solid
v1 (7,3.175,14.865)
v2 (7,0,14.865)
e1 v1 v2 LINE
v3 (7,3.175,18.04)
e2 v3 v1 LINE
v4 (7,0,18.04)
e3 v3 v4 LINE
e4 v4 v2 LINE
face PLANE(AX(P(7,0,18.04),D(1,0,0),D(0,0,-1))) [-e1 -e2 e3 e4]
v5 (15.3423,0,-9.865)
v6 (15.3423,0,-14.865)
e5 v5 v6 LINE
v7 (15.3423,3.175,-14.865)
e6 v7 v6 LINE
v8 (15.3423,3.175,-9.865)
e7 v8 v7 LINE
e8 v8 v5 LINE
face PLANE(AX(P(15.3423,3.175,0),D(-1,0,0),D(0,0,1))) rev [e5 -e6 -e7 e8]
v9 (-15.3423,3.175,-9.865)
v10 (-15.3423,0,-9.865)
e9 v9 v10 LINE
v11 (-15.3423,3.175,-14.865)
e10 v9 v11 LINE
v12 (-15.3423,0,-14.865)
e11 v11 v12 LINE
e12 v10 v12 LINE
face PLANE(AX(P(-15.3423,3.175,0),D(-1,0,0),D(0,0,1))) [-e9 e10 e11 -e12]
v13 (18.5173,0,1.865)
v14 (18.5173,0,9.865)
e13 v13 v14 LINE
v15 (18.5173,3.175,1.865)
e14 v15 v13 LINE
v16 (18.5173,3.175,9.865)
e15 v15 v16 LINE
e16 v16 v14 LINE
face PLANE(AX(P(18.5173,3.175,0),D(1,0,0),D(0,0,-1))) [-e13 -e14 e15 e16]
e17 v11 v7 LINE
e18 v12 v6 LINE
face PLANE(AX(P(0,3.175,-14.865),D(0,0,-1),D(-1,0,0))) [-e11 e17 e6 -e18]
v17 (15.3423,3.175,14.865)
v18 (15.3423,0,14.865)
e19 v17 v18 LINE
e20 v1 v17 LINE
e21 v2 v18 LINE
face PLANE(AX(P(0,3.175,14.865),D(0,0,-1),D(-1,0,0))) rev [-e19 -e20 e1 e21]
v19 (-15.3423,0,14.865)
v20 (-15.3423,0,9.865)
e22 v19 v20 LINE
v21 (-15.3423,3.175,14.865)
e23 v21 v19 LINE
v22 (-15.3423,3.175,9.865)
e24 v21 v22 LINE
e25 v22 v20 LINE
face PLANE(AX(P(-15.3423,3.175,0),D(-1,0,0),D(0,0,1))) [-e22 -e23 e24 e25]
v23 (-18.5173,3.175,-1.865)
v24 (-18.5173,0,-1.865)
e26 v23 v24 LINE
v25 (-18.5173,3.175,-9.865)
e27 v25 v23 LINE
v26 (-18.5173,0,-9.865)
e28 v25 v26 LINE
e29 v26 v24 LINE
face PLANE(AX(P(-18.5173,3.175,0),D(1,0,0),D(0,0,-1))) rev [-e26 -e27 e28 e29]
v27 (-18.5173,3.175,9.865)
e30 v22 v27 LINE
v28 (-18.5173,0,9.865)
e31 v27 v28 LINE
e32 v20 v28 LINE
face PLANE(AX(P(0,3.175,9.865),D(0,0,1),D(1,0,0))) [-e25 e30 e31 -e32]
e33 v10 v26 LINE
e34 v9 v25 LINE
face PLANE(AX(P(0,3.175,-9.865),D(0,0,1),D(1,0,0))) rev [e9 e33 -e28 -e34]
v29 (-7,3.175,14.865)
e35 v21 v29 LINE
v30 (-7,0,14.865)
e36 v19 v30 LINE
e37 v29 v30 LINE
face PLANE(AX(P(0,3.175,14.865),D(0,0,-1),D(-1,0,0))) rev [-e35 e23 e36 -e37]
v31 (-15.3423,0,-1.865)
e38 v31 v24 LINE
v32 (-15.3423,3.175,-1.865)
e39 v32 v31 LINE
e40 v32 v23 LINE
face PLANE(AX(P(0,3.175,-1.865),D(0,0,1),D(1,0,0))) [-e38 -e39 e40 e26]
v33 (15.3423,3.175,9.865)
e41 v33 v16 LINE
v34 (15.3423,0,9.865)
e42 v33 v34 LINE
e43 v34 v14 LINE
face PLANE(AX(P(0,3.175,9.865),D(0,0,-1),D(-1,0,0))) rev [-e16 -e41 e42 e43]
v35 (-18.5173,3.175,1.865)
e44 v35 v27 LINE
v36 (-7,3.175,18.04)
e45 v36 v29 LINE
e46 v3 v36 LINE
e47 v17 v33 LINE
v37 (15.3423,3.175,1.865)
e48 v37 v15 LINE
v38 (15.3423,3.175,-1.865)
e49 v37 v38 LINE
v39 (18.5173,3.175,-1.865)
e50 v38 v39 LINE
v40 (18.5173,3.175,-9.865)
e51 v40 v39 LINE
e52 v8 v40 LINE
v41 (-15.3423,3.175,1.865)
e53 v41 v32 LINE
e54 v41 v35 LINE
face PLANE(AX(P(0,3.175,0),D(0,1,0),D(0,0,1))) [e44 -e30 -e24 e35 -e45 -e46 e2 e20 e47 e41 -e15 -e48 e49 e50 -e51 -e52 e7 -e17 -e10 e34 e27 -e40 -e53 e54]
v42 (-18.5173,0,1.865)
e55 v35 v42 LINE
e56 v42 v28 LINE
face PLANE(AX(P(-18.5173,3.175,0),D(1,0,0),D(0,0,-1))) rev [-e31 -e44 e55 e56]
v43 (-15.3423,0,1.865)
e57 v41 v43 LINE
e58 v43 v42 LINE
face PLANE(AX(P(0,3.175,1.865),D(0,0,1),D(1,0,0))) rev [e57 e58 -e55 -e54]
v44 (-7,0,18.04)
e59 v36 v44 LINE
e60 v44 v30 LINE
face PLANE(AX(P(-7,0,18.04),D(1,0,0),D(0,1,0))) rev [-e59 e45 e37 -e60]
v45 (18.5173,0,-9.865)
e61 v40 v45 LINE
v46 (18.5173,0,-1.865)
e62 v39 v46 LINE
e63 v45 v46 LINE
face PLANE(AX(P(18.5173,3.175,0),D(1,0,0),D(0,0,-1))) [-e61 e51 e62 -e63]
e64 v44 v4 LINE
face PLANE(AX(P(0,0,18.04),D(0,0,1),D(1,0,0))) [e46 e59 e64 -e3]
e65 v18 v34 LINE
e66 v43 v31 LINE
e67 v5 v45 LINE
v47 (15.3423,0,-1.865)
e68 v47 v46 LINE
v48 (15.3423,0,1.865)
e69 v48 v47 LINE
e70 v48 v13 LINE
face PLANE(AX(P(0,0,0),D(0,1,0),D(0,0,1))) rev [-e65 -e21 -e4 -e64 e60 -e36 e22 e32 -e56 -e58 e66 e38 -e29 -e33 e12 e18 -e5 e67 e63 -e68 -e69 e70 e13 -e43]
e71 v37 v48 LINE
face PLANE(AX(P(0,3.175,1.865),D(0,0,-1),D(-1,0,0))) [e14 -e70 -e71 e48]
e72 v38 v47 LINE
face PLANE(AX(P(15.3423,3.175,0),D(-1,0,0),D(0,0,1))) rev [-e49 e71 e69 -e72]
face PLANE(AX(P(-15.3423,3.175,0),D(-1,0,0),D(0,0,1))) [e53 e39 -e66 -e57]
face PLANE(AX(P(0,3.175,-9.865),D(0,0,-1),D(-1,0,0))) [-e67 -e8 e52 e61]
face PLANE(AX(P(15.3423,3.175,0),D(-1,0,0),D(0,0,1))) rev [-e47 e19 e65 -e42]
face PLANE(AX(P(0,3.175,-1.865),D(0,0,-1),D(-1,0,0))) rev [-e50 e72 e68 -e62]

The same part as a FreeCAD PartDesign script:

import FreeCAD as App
import Part
import Sketcher

V = App.Vector


def add_polygon(sketch, points):
    """Adds a closed chain of lines whose ends are joined by coincident constraints."""
    first, n = sketch.GeometryCount, len(points)
    for a, b in zip(points, points[1:] + points[:1]):
        sketch.addGeometry(Part.LineSegment(App.Vector(*a, 0), App.Vector(*b, 0)), False)
    for i in range(n):
        sketch.addConstraint(Sketcher.Constraint("Coincident", first + i, 2, first + (i + 1) % n, 1))

doc = App.newDocument("Part")
params = doc.addObject("Spreadsheet::Sheet", "Params")
for row, (alias, value) in enumerate([
    ("sketch1_height", "8 mm"),
    ("sketch1_height2", "5 mm"),
    ("sketch1_height3", "3.73 mm"),
    ("pad1_length", "3.175 mm"),
    ("sketch2_width", "14 mm"),
    ("pad2_length", "3.175 mm"),
], start=1):
    params.set(f"A{row}", alias)
    params.set(f"B{row}", "=" + value)
    params.setAlias(f"B{row}", alias)

body = doc.addObject("PartDesign::Body", "Body")

sketch1 = body.newObject("Sketcher::SketchObject", "Sketch")
sketch1.AttachmentSupport = (doc.getObject("XZ_Plane"), [""])
sketch1.MapMode = "FlatFace"
add_polygon(sketch1, [(-18.5, -9.9), (-18.5, -1.9), (-15.3, -1.9), (-15.3, 1.9), (-18.5, 1.9), (-18.5, 9.9), (-15.3, 9.9), (-15.3, 14.9), (15.3, 14.9), (15.3, 9.9), (18.5, 9.9), (18.5, 1.9), (15.3, 1.9), (15.3, -1.9), (18.5, -1.9), (18.5, -9.9), (15.3, -9.9), (15.3, -14.9), (-15.3, -14.9), (-15.3, -9.9)])
sketch1.addConstraint([
    Sketcher.Constraint("Vertical", 0),
    Sketcher.Constraint("Horizontal", 1),
    Sketcher.Constraint("Vertical", 2),
    Sketcher.Constraint("Horizontal", 3),
    Sketcher.Constraint("Vertical", 4),
    Sketcher.Constraint("Horizontal", 5),
    Sketcher.Constraint("Vertical", 6),
    Sketcher.Constraint("Horizontal", 7),
    Sketcher.Constraint("Vertical", 8),
    Sketcher.Constraint("Horizontal", 9),
    Sketcher.Constraint("Vertical", 10),
    Sketcher.Constraint("Horizontal", 11),
    Sketcher.Constraint("Vertical", 12),
    Sketcher.Constraint("Horizontal", 13),
    Sketcher.Constraint("Vertical", 14),
    Sketcher.Constraint("Horizontal", 15),
    Sketcher.Constraint("Vertical", 16),
    Sketcher.Constraint("Horizontal", 17),
    Sketcher.Constraint("Vertical", 18),
    Sketcher.Constraint("Horizontal", 19),
    Sketcher.Constraint("Symmetric", 0, 2, 10, 2, -1, 1),
    Sketcher.Constraint("Symmetric", 2, 2, 12, 2, -1, 1),
    Sketcher.Constraint("Symmetric", 4, 2, 14, 2, -1, 1),
    Sketcher.Constraint("Symmetric", 6, 2, 16, 2, -1, 1),
    Sketcher.Constraint("Symmetric", 8, 2, 18, 2, -1, 1),
    Sketcher.Constraint("Symmetric", 5, 2, 8, 2, -2),
    Sketcher.Constraint("Symmetric", 3, 2, 10, 2, -2),
    Sketcher.Constraint("Vertical", 2, 2, 5, 2),
    Sketcher.Constraint("DistanceY", 0, 1, 0, 2, 8.0),
    Sketcher.Constraint("DistanceY", 6, 1, 6, 2, 5.0),
    Sketcher.Constraint("DistanceY", 2, 1, 2, 2, 3.73),
    Sketcher.Constraint("DistanceX", 1, 1, 1, 2, 3.175),
    Sketcher.Constraint("DistanceX", 7, 1, 7, 2, 30.6846),
])
sketch1.setExpression("Constraints[48]", "Params.sketch1_height")
sketch1.setExpression("Constraints[49]", "Params.sketch1_height2")
sketch1.setExpression("Constraints[50]", "Params.sketch1_height3")
pad1 = body.newObject("PartDesign::Pad", "Pad")
pad1.Profile = sketch1
pad1.setExpression("Length", "Params.pad1_length")
pad1.Reversed = True

sketch2 = body.newObject("Sketcher::SketchObject", "Sketch001")
sketch2.AttachmentSupport = (doc.getObject("XY_Plane"), [""])
sketch2.MapMode = "FlatFace"
sketch2.AttachmentOffset = App.Placement(V(0, 0, 14.865), App.Rotation())
add_polygon(sketch2, [(-7, 3.2), (-7, 0), (7, 0), (7, 3.2)])
sketch2.addConstraint([
    Sketcher.Constraint("Vertical", 0),
    Sketcher.Constraint("Horizontal", 1),
    Sketcher.Constraint("Vertical", 2),
    Sketcher.Constraint("Horizontal", 3),
    Sketcher.Constraint("Symmetric", 0, 2, 1, 2, -1, 1),
    Sketcher.Constraint("DistanceX", 1, 1, 1, 2, 14.0),
    Sketcher.Constraint("DistanceY", 0, 2, 0, 1, 3.175),
])
sketch2.setExpression("Constraints[9]", "Params.sketch2_width")
pad2 = body.newObject("PartDesign::Pad", "Pad001")
pad2.Profile = sketch2
pad2.setExpression("Length", "Params.pad2_length")

doc.recompute()
